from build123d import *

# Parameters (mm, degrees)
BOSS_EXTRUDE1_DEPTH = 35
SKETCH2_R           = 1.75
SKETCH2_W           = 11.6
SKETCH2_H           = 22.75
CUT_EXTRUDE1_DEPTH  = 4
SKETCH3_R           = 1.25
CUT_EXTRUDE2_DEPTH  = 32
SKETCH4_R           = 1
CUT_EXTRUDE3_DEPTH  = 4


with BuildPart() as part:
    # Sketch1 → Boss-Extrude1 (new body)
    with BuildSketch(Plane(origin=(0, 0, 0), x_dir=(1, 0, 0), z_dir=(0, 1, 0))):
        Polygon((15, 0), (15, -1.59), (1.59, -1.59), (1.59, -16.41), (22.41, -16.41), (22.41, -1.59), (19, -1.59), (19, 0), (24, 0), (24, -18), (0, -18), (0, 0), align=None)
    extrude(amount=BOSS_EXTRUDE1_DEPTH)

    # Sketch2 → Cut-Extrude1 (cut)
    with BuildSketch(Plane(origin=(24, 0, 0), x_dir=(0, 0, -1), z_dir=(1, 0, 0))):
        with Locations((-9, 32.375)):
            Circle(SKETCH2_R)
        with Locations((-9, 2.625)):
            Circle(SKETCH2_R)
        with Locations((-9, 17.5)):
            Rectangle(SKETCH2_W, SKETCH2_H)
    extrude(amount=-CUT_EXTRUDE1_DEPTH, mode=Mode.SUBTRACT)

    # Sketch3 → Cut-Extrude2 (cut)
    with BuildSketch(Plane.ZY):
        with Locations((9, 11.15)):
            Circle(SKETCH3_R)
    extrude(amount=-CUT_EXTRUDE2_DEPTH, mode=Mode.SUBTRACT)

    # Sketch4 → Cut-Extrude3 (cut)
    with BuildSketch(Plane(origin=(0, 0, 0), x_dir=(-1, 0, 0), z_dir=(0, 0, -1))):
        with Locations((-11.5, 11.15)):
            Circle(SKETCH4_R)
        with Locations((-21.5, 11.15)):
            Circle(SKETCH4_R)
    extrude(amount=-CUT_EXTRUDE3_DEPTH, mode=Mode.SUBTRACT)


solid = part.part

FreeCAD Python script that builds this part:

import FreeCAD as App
import Part
import Sketcher
Q = App.Units.Quantity

doc = App.newDocument("Part")
body = doc.addObject("PartDesign::Body", "Body")

# Sketch on XZ plane
sketch1 = doc.addObject("Sketcher::SketchObject", "Sketch")
body.addObject(sketch1)
sketch1.AttachmentSupport = (doc.XZ_Plane, [""])
sketch1.MapMode = "FlatFace"
sketch1.addGeometry([
    Part.LineSegment(App.Vector(15, 1.59, 0), App.Vector(15, 0, 0)),  # 0
    Part.LineSegment(App.Vector(15, 0, 0), App.Vector(0, 0, 0)),  # 1
    Part.LineSegment(App.Vector(0, 0, 0), App.Vector(0, 18, 0)),  # 2
    Part.LineSegment(App.Vector(0, 18, 0), App.Vector(24, 18, 0)),  # 3
    Part.LineSegment(App.Vector(24, 18, 0), App.Vector(24, 0, 0)),  # 4
    Part.LineSegment(App.Vector(24, 0, 0), App.Vector(19, 0, 0)),  # 5
    Part.LineSegment(App.Vector(19, 0, 0), App.Vector(19, 1.59, 0)),  # 6
    Part.LineSegment(App.Vector(19, 1.59, 0), App.Vector(22.41, 1.59, 0)),  # 7
    Part.LineSegment(App.Vector(22.41, 1.59, 0), App.Vector(22.41, 16.41, 0)),  # 8
    Part.LineSegment(App.Vector(22.41, 16.41, 0), App.Vector(1.59, 16.41, 0)),  # 9
    Part.LineSegment(App.Vector(1.59, 16.41, 0), App.Vector(1.59, 1.59, 0)),  # 10
    Part.LineSegment(App.Vector(1.59, 1.59, 0), App.Vector(15, 1.59, 0)),  # 11
], False)
sketch1.addConstraint([
    Sketcher.Constraint("Coincident", 0, 2, 1, 1),
    Sketcher.Constraint("Coincident", 1, 2, 2, 1),
    Sketcher.Constraint("Coincident", 2, 2, 3, 1),
    Sketcher.Constraint("Coincident", 3, 2, 4, 1),
    Sketcher.Constraint("Coincident", 4, 2, 5, 1),
    Sketcher.Constraint("Coincident", 5, 2, 6, 1),
    Sketcher.Constraint("Coincident", 6, 2, 7, 1),
    Sketcher.Constraint("Coincident", 7, 2, 8, 1),
    Sketcher.Constraint("Coincident", 8, 2, 9, 1),
    Sketcher.Constraint("Coincident", 9, 2, 10, 1),
    Sketcher.Constraint("Coincident", 10, 2, 11, 1),
    Sketcher.Constraint("Coincident", 11, 2, 0, 1),
    Sketcher.Constraint("Vertical", 0),
    Sketcher.Constraint("Horizontal", 1),
    Sketcher.Constraint("Vertical", 2),
    Sketcher.Constraint("Horizontal", 3),
    Sketcher.Constraint("Vertical", 4),
    Sketcher.Constraint("Horizontal", 5),
    Sketcher.Constraint("Vertical", 6),
    Sketcher.Constraint("Horizontal", 7),
    Sketcher.Constraint("Vertical", 8),
    Sketcher.Constraint("Horizontal", 9),
    Sketcher.Constraint("Vertical", 10),
    Sketcher.Constraint("Horizontal", 11),
    Sketcher.Constraint("Coincident", 1, 2, -1, 1),
    Sketcher.Constraint("PointOnObject", 4, 2, -1),
    Sketcher.Constraint("Horizontal", 7, 2, 10, 2),
    Sketcher.Constraint("DistanceX", 1, 2, 1, 1, Q("15 mm")),
    Sketcher.Constraint("DistanceX", 3, 1, 3, 2, Q("24 mm")),
    Sketcher.Constraint("DistanceX", 5, 2, 5, 1, Q("5 mm")),
    Sketcher.Constraint("DistanceY", 2, 1, 2, 2, Q("18 mm")),
    Sketcher.Constraint("DistanceX", 7, 1, 7, 2, Q("3.41 mm")),
    Sketcher.Constraint("DistanceX", 9, 2, 9, 1, Q("20.82 mm")),
    Sketcher.Constraint("DistanceY", 0, 2, 0, 1, Q("1.59 mm")),
    Sketcher.Constraint("DistanceY", 8, 1, 8, 2, Q("14.82 mm")),
])
pad1 = doc.addObject("PartDesign::Pad", "Pad")
body.addObject(pad1)
pad1.Profile = sketch1
pad1.Length = 35
pad1.Reversed = True

# Sketch on YZ plane
sketch2 = doc.addObject("Sketcher::SketchObject", "Sketch001")
body.addObject(sketch2)
sketch2.AttachmentSupport = (doc.YZ_Plane, [""])
sketch2.MapMode = "FlatFace"
sketch2.AttachmentOffset = App.Placement(App.Vector(0, 0, 24), App.Rotation())
sketch2.addGeometry([
    Part.Circle(App.Vector(32.375, 9, 0), App.Vector(0, 0, 1), 1.75),  # 0
    Part.Circle(App.Vector(2.625, 9, 0), App.Vector(0, 0, 1), 1.75),  # 1
    Part.LineSegment(App.Vector(28.875, 14.8, 0), App.Vector(6.125, 14.8, 0)),  # 2
    Part.LineSegment(App.Vector(6.125, 14.8, 0), App.Vector(6.125, 3.2, 0)),  # 3
    Part.LineSegment(App.Vector(6.125, 3.2, 0), App.Vector(28.875, 3.2, 0)),  # 4
    Part.LineSegment(App.Vector(28.875, 3.2, 0), App.Vector(28.875, 14.8, 0)),  # 5
], False)
sketch2.addConstraint([
    Sketcher.Constraint("Coincident", 2, 2, 3, 1),
    Sketcher.Constraint("Coincident", 3, 2, 4, 1),
    Sketcher.Constraint("Coincident", 4, 2, 5, 1),
    Sketcher.Constraint("Coincident", 5, 2, 2, 1),
    Sketcher.Constraint("Horizontal", 2),
    Sketcher.Constraint("Vertical", 3),
    Sketcher.Constraint("Horizontal", 4),
    Sketcher.Constraint("Vertical", 5),
    Sketcher.Constraint("Equal", 0, 1),
    Sketcher.Constraint("Horizontal", 0, 3, 1, 3),
    Sketcher.Constraint("Diameter", 0, Q("3.5 mm")),
    Sketcher.Constraint("DistanceY", 3, 2, 3, 1, Q("11.6 mm")),
    Sketcher.Constraint("DistanceY", -1, 1, 0, 3, Q("9 mm")),
    Sketcher.Constraint("DistanceX", 2, 2, 2, 1, Q("22.75 mm")),
    Sketcher.Constraint("DistanceY", -1, 1, 2, 2, Q("14.8 mm")),
    Sketcher.Constraint("DistanceX", 1, 3, 2, 2, Q("3.5 mm")),
    Sketcher.Constraint("DistanceX", 4, 2, 0, 3, Q("3.5 mm")),
    Sketcher.Constraint("DistanceX", -1, 1, 0, 3, Q("32.375 mm")),
])
pocket1 = doc.addObject("PartDesign::Pocket", "Pocket")
body.addObject(pocket1)
pocket1.Profile = sketch2
pocket1.Length = 4

# Sketch on YZ plane
sketch3 = doc.addObject("Sketcher::SketchObject", "Sketch002")
body.addObject(sketch3)
sketch3.AttachmentSupport = (doc.YZ_Plane, [""])
sketch3.MapMode = "FlatFace"
sketch3.addGeometry(Part.Circle(App.Vector(11.15, 9, 0), App.Vector(0, 0, 1), 1.25), False)
sketch3.addConstraint([
    Sketcher.Constraint("Diameter", 0, Q("2.5 mm")),
    Sketcher.Constraint("DistanceY", -1, 1, 0, 3, Q("9 mm")),
    Sketcher.Constraint("DistanceX", -1, 1, 0, 3, Q("11.15 mm")),
])
pocket2 = doc.addObject("PartDesign::Pocket", "Pocket001")
body.addObject(pocket2)
pocket2.Profile = sketch3
pocket2.Length = 32
pocket2.Reversed = True

# Sketch on XY plane
sketch4 = doc.addObject("Sketcher::SketchObject", "Sketch003")
body.addObject(sketch4)
sketch4.AttachmentSupport = (doc.XY_Plane, [""])
sketch4.MapMode = "FlatFace"
sketch4.addGeometry([
    Part.Circle(App.Vector(11.5, 11.15, 0), App.Vector(0, 0, 1), 1),
    Part.Circle(App.Vector(21.5, 11.15, 0), App.Vector(0, 0, 1), 1),
], False)
sketch4.addConstraint([
    Sketcher.Constraint("Equal", 0, 1),
    Sketcher.Constraint("Horizontal", 0, 3, 1, 3),
    Sketcher.Constraint("Diameter", 0, Q("2 mm")),
    Sketcher.Constraint("DistanceX", 0, 3, 1, 3, Q("10 mm")),
    Sketcher.Constraint("DistanceX", -1, 1, 0, 3, Q("11.5 mm")),
    Sketcher.Constraint("DistanceY", -1, 1, 0, 3, Q("11.15 mm")),
])
pocket3 = doc.addObject("PartDesign::Pocket", "Pocket002")
body.addObject(pocket3)
pocket3.Profile = sketch4
pocket3.Length = 4
pocket3.Reversed = True

doc.recompute()
